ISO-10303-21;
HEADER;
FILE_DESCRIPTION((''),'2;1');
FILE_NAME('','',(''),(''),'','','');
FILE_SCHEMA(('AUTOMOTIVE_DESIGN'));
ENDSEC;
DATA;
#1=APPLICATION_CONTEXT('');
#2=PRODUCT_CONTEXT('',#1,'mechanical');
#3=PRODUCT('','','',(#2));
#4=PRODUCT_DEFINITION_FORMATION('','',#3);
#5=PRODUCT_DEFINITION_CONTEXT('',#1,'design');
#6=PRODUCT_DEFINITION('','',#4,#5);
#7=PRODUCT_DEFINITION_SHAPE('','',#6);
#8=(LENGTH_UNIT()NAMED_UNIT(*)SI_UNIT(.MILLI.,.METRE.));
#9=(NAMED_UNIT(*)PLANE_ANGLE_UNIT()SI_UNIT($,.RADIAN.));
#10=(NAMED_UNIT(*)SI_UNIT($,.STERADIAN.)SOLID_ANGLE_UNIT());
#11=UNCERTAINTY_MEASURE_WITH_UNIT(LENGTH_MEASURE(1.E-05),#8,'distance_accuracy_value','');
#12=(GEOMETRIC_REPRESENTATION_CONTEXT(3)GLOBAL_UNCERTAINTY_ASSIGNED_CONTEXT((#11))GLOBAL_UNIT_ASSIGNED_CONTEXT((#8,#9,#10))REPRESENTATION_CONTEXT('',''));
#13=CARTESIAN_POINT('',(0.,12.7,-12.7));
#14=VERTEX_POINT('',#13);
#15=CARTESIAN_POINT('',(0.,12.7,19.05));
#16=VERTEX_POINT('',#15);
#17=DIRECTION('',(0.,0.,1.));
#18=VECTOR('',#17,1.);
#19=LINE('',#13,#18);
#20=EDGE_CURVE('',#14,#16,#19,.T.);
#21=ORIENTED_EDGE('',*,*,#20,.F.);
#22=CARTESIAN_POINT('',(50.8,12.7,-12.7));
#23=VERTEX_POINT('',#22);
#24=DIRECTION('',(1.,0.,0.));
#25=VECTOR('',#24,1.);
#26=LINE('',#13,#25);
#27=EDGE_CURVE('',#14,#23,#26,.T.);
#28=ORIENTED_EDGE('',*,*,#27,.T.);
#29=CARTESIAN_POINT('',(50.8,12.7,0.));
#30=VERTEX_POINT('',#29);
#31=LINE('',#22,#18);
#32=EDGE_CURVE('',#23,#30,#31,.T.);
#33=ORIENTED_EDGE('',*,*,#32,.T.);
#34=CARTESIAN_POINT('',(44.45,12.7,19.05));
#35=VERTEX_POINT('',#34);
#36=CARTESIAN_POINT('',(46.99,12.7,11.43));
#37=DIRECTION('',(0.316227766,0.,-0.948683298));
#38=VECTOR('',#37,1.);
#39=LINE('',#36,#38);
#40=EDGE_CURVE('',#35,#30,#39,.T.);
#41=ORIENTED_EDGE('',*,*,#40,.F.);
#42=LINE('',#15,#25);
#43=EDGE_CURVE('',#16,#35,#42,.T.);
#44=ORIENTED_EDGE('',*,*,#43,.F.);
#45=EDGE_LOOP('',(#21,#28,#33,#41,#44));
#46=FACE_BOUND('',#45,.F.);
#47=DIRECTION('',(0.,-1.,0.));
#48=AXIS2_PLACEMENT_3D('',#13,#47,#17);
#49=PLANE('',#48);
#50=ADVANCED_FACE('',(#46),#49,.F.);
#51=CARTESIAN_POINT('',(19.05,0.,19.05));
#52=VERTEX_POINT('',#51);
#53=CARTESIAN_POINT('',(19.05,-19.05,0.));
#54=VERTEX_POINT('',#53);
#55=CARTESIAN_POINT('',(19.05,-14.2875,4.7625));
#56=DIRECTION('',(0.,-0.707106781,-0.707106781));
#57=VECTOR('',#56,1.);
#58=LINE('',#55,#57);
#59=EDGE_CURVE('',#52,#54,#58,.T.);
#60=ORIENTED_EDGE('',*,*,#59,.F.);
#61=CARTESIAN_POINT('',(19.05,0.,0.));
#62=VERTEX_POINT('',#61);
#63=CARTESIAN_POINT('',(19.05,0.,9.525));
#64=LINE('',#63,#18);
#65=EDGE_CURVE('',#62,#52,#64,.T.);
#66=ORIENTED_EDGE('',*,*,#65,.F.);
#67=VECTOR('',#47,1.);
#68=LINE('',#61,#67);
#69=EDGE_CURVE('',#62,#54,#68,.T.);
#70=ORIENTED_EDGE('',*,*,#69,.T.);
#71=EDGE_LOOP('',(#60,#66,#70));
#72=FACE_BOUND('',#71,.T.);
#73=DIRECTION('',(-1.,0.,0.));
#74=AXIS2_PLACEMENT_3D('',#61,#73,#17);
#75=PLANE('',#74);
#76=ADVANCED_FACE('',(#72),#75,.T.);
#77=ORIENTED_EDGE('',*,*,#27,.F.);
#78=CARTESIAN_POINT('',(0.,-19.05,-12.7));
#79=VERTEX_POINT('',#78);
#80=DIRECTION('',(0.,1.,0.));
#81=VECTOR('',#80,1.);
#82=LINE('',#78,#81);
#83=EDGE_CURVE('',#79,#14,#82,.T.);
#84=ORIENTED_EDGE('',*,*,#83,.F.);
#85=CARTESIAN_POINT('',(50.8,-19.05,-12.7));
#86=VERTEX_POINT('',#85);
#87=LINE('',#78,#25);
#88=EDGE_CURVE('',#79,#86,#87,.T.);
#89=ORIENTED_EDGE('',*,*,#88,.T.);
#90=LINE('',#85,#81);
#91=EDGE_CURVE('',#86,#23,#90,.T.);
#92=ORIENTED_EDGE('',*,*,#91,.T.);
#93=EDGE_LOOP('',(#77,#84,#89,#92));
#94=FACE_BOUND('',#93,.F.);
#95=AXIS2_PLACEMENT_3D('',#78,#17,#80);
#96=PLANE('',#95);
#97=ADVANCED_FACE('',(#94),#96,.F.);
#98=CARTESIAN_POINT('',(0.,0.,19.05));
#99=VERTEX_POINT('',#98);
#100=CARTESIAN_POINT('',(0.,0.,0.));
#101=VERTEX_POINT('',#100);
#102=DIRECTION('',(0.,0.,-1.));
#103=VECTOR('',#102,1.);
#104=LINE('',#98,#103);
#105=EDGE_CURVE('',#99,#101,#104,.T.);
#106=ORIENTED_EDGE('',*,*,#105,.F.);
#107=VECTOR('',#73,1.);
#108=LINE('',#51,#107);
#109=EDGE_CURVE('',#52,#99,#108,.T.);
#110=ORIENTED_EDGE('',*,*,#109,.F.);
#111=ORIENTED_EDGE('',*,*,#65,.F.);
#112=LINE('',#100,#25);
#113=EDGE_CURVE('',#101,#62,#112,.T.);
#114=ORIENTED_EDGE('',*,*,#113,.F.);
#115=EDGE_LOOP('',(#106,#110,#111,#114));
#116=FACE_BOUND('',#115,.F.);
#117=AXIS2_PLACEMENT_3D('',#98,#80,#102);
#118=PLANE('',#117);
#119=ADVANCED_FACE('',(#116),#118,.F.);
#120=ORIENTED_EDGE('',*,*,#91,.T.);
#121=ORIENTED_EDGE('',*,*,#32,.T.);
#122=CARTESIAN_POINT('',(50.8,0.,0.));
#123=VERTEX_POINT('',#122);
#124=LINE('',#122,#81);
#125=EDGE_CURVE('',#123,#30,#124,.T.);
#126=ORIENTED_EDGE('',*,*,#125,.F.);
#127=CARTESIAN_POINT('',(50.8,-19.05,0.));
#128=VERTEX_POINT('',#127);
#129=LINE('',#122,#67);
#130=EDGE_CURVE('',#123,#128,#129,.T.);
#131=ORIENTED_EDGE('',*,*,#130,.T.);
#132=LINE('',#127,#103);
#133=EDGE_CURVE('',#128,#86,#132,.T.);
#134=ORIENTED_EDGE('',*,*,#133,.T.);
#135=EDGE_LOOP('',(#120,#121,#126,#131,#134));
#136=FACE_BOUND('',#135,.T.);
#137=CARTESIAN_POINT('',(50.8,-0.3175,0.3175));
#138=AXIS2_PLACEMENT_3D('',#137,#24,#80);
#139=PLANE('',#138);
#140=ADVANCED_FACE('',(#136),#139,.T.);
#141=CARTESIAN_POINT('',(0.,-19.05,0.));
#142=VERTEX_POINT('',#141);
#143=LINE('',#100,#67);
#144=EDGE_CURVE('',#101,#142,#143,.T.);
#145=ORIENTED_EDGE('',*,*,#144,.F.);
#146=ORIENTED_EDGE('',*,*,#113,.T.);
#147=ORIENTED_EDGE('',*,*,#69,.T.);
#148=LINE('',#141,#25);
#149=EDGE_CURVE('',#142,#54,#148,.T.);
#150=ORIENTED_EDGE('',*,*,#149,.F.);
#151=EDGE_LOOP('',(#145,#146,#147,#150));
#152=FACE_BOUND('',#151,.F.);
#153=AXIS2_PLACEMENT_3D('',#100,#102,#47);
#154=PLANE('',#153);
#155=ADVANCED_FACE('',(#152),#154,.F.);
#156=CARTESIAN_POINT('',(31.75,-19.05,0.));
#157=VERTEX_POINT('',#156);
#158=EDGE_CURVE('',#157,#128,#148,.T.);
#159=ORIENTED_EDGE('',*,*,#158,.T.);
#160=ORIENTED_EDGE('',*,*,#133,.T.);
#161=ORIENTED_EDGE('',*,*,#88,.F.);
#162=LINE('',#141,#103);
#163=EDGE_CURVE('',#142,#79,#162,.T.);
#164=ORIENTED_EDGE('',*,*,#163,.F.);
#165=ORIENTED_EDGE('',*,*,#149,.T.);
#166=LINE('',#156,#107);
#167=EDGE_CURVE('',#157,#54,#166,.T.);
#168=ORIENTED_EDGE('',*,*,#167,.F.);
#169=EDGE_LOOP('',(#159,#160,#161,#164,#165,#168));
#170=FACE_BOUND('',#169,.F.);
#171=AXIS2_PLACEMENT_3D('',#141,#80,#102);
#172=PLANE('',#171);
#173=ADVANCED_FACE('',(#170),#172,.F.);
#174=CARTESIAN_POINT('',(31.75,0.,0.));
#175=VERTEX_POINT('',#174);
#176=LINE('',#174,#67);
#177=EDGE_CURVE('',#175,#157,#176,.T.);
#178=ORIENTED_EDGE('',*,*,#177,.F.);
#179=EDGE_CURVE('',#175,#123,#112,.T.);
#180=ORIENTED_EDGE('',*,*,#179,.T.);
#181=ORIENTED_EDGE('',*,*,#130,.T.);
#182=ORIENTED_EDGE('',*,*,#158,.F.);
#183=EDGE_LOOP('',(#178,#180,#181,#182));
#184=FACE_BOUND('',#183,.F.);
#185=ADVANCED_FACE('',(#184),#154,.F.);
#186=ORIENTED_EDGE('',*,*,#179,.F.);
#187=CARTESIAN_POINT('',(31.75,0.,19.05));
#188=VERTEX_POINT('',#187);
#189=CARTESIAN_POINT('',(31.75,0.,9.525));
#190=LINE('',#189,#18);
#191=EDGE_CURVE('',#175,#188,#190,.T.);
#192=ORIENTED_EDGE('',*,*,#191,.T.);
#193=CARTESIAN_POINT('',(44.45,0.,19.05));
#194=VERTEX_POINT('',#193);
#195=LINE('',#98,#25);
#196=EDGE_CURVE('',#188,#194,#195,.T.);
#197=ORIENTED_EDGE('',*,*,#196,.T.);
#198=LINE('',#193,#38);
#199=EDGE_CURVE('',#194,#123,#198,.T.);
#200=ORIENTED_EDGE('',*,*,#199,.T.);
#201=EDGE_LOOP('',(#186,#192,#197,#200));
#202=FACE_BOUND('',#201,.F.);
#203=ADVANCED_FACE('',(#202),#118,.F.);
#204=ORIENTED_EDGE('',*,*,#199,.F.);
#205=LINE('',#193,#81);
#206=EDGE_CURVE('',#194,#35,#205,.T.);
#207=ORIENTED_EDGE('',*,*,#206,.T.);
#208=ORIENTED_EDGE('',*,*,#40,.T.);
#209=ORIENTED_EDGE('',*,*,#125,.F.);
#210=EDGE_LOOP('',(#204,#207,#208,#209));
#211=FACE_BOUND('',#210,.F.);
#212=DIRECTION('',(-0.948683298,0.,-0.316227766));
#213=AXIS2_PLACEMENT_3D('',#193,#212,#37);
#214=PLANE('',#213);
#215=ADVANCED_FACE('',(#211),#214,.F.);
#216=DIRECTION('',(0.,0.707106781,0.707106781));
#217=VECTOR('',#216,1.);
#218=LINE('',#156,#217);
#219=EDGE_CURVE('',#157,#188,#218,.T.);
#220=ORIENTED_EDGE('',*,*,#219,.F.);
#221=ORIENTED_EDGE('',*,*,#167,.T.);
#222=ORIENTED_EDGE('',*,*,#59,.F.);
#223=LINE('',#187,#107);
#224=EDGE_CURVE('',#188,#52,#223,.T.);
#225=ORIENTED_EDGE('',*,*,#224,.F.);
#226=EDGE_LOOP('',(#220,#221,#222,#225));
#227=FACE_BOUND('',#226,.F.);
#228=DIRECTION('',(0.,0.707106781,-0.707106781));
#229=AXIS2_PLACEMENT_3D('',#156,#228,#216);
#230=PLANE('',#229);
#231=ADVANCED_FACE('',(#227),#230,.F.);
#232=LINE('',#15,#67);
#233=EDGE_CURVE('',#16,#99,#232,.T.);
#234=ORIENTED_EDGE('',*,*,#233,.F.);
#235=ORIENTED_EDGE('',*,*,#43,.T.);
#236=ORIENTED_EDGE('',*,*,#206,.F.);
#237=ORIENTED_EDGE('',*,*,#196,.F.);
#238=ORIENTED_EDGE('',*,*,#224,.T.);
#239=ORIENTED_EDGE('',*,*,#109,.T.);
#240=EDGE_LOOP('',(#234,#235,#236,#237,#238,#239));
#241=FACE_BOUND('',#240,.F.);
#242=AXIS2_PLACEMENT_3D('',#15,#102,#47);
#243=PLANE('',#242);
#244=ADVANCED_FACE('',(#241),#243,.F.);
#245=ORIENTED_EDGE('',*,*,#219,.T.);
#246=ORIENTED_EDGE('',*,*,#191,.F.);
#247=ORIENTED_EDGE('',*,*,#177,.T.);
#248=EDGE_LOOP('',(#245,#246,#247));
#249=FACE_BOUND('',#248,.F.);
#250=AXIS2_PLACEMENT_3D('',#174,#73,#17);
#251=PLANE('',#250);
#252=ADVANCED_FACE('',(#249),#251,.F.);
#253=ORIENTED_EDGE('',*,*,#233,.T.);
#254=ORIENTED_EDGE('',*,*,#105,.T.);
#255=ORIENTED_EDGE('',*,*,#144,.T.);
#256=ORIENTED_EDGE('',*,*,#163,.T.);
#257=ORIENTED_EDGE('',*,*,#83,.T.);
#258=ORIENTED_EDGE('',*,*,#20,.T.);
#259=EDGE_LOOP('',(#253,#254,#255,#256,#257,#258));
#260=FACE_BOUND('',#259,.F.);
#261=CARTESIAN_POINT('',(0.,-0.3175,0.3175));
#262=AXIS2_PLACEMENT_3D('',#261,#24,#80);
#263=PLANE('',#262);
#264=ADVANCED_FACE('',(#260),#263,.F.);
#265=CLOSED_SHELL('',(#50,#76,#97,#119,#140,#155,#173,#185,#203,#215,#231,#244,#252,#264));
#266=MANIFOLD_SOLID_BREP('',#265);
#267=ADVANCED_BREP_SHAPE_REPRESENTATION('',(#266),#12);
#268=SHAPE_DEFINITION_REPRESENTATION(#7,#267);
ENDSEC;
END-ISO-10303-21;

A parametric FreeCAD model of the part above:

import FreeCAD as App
import Part
import Sketcher
from FreeCAD import Vector
Q = App.Units.Quantity

doc = App.newDocument("Part")
body = doc.addObject("PartDesign::Body", "Body")

sketch1 = doc.addObject("Sketcher::SketchObject", "Sketch")
body.addObject(sketch1)
sketch1.AttachmentSupport = (doc.YZ_Plane, [""])
sketch1.MapMode = "FlatFace"
sketch1.addGeometry([
    Part.LineSegment(Vector(0, 19.05, 0), Vector(0, 0, 0)),
    Part.LineSegment(Vector(0, 0, 0), Vector(-19.05, 0, 0)),
    Part.LineSegment(Vector(-19.05, 0, 0), Vector(-19.05, -12.7, 0)),
    Part.LineSegment(Vector(-19.05, -12.7, 0), Vector(12.7, -12.7, 0)),
    Part.LineSegment(Vector(12.7, -12.7, 0), Vector(12.7, 19.05, 0)),
    Part.LineSegment(Vector(12.7, 19.05, 0), Vector(0, 19.05, 0)),
], False)
sketch1.addConstraint([
    Sketcher.Constraint("Coincident", 0, 2, 1, 1),
    Sketcher.Constraint("Coincident", 1, 2, 2, 1),
    Sketcher.Constraint("Coincident", 2, 2, 3, 1),
    Sketcher.Constraint("Coincident", 3, 2, 4, 1),
    Sketcher.Constraint("Coincident", 4, 2, 5, 1),
    Sketcher.Constraint("Coincident", 5, 2, 0, 1),
    Sketcher.Constraint("Vertical", 0),
    Sketcher.Constraint("Horizontal", 1),
    Sketcher.Constraint("Vertical", 2),
    Sketcher.Constraint("Horizontal", 3),
    Sketcher.Constraint("Vertical", 4),
    Sketcher.Constraint("Horizontal", 5),
    Sketcher.Constraint("Coincident", 0, 2, -1, 1),
    Sketcher.Constraint("Equal", 1, 0),
    Sketcher.Constraint("Equal", 5, 2),
    Sketcher.Constraint("DistanceX", 5, 2, 5, 1, Q("0.5 in")),
    Sketcher.Constraint("DistanceX", 1, 2, 1, 1, Q("0.75 in")),
])
pad1 = doc.addObject("PartDesign::Pad", "Pad")
body.addObject(pad1)
pad1.Profile = sketch1
pad1.Length = Q("2 in")

sketch2 = doc.addObject("Sketcher::SketchObject", "Sketch001")
body.addObject(sketch2)
sketch2.AttachmentSupport = (doc.XZ_Plane, [""])
sketch2.MapMode = "FlatFace"
sketch2.addGeometry([
    Part.LineSegment(Vector(50.8, 0, 0), Vector(50.8, 19.05, 0)),
    Part.LineSegment(Vector(50.8, 19.05, 0), Vector(44.45, 19.05, 0)),
    Part.LineSegment(Vector(44.45, 19.05, 0), Vector(50.8, 0, 0)),
], False)
sketch2.addConstraint([
    Sketcher.Constraint("Coincident", 0, 2, 1, 1),
    Sketcher.Constraint("Coincident", 1, 2, 2, 1),
    Sketcher.Constraint("Coincident", 2, 2, 0, 1),
    Sketcher.Constraint("Vertical", 0),
    Sketcher.Constraint("Horizontal", 1),
    Sketcher.Constraint("PointOnObject", 2, 2, -1),
    Sketcher.Constraint("DistanceX", -1, 1, 0, 2, Q("2 in")),
    Sketcher.Constraint("DistanceX", 1, 2, 1, 1, Q("0.25 in")),
    Sketcher.Constraint("DistanceY", 0, 1, 0, 2, Q("0.75 in")),
])
pocket1 = doc.addObject("PartDesign::Pocket", "Pocket")
body.addObject(pocket1)
pocket1.Profile = sketch2
pocket1.Length = Q("1 in")

sketch3 = doc.addObject("Sketcher::SketchObject", "Sketch002")
body.addObject(sketch3)
sketch3.AttachmentSupport = (doc.XZ_Plane, [""])
sketch3.MapMode = "FlatFace"
sketch3.addGeometry([
    Part.LineSegment(Vector(19.05, 19.05, 0), Vector(19.05, 0, 0)),
    Part.LineSegment(Vector(19.05, 0, 0), Vector(31.75, 0, 0)),
    Part.LineSegment(Vector(31.75, 0, 0), Vector(31.75, 19.05, 0)),
    Part.LineSegment(Vector(31.75, 19.05, 0), Vector(19.05, 19.05, 0)),
], False)
sketch3.addConstraint([
    Sketcher.Constraint("Coincident", 0, 2, 1, 1),
    Sketcher.Constraint("Coincident", 1, 2, 2, 1),
    Sketcher.Constraint("Coincident", 2, 2, 3, 1),
    Sketcher.Constraint("Coincident", 3, 2, 0, 1),
    Sketcher.Constraint("Vertical", 0),
    Sketcher.Constraint("Horizontal", 1),
    Sketcher.Constraint("Vertical", 2),
    Sketcher.Constraint("Horizontal", 3),
    Sketcher.Constraint("PointOnObject", 0, 2, -1),
    Sketcher.Constraint("DistanceX", 1, 1, 1, 2, Q("0.5 in")),
    Sketcher.Constraint("DistanceY", 0, 2, 0, 1, Q("0.75 in")),
    Sketcher.Constraint("DistanceX", -1, 1, 0, 2, Q("0.75 in")),
])
pad2 = doc.addObject("PartDesign::Pad", "Pad001")
body.addObject(pad2)
pad2.Profile = sketch3
pad2.Length = Q("0.75 in")

sketch4 = doc.addObject("Sketcher::SketchObject", "Sketch003")
body.addObject(sketch4)
sketch4.AttachmentSupport = (doc.YZ_Plane, [""])
sketch4.MapMode = "FlatFace"
sketch4.AttachmentOffset = App.Placement(Vector(0, 0, 1.25 * 25.4), App.Rotation())
sketch4.addGeometry([
    Part.LineSegment(Vector(-19.05, 19.05, 0), Vector(-19.05, 0, 0)),
    Part.LineSegment(Vector(-19.05, 0, 0), Vector(0, 19.05, 0)),
    Part.LineSegment(Vector(0, 19.05, 0), Vector(-19.05, 19.05, 0)),
], False)
sketch4.addConstraint([
    Sketcher.Constraint("Coincident", 0, 2, 1, 1),
    Sketcher.Constraint("Coincident", 1, 2, 2, 1),
    Sketcher.Constraint("Coincident", 2, 2, 0, 1),
    Sketcher.Constraint("Vertical", 0),
    Sketcher.Constraint("Horizontal", 2),
    Sketcher.Constraint("PointOnObject", 0, 2, -1),
    Sketcher.Constraint("PointOnObject", 1, 2, -2),
    Sketcher.Constraint("Equal", 2, 0),
    Sketcher.Constraint("DistanceX", 2, 2, 2, 1, Q("0.75 in")),
])
pocket2 = doc.addObject("PartDesign::Pocket", "Pocket001")
body.addObject(pocket2)
pocket2.Profile = sketch4
pocket2.Length = Q("1 in")

doc.recompute()
